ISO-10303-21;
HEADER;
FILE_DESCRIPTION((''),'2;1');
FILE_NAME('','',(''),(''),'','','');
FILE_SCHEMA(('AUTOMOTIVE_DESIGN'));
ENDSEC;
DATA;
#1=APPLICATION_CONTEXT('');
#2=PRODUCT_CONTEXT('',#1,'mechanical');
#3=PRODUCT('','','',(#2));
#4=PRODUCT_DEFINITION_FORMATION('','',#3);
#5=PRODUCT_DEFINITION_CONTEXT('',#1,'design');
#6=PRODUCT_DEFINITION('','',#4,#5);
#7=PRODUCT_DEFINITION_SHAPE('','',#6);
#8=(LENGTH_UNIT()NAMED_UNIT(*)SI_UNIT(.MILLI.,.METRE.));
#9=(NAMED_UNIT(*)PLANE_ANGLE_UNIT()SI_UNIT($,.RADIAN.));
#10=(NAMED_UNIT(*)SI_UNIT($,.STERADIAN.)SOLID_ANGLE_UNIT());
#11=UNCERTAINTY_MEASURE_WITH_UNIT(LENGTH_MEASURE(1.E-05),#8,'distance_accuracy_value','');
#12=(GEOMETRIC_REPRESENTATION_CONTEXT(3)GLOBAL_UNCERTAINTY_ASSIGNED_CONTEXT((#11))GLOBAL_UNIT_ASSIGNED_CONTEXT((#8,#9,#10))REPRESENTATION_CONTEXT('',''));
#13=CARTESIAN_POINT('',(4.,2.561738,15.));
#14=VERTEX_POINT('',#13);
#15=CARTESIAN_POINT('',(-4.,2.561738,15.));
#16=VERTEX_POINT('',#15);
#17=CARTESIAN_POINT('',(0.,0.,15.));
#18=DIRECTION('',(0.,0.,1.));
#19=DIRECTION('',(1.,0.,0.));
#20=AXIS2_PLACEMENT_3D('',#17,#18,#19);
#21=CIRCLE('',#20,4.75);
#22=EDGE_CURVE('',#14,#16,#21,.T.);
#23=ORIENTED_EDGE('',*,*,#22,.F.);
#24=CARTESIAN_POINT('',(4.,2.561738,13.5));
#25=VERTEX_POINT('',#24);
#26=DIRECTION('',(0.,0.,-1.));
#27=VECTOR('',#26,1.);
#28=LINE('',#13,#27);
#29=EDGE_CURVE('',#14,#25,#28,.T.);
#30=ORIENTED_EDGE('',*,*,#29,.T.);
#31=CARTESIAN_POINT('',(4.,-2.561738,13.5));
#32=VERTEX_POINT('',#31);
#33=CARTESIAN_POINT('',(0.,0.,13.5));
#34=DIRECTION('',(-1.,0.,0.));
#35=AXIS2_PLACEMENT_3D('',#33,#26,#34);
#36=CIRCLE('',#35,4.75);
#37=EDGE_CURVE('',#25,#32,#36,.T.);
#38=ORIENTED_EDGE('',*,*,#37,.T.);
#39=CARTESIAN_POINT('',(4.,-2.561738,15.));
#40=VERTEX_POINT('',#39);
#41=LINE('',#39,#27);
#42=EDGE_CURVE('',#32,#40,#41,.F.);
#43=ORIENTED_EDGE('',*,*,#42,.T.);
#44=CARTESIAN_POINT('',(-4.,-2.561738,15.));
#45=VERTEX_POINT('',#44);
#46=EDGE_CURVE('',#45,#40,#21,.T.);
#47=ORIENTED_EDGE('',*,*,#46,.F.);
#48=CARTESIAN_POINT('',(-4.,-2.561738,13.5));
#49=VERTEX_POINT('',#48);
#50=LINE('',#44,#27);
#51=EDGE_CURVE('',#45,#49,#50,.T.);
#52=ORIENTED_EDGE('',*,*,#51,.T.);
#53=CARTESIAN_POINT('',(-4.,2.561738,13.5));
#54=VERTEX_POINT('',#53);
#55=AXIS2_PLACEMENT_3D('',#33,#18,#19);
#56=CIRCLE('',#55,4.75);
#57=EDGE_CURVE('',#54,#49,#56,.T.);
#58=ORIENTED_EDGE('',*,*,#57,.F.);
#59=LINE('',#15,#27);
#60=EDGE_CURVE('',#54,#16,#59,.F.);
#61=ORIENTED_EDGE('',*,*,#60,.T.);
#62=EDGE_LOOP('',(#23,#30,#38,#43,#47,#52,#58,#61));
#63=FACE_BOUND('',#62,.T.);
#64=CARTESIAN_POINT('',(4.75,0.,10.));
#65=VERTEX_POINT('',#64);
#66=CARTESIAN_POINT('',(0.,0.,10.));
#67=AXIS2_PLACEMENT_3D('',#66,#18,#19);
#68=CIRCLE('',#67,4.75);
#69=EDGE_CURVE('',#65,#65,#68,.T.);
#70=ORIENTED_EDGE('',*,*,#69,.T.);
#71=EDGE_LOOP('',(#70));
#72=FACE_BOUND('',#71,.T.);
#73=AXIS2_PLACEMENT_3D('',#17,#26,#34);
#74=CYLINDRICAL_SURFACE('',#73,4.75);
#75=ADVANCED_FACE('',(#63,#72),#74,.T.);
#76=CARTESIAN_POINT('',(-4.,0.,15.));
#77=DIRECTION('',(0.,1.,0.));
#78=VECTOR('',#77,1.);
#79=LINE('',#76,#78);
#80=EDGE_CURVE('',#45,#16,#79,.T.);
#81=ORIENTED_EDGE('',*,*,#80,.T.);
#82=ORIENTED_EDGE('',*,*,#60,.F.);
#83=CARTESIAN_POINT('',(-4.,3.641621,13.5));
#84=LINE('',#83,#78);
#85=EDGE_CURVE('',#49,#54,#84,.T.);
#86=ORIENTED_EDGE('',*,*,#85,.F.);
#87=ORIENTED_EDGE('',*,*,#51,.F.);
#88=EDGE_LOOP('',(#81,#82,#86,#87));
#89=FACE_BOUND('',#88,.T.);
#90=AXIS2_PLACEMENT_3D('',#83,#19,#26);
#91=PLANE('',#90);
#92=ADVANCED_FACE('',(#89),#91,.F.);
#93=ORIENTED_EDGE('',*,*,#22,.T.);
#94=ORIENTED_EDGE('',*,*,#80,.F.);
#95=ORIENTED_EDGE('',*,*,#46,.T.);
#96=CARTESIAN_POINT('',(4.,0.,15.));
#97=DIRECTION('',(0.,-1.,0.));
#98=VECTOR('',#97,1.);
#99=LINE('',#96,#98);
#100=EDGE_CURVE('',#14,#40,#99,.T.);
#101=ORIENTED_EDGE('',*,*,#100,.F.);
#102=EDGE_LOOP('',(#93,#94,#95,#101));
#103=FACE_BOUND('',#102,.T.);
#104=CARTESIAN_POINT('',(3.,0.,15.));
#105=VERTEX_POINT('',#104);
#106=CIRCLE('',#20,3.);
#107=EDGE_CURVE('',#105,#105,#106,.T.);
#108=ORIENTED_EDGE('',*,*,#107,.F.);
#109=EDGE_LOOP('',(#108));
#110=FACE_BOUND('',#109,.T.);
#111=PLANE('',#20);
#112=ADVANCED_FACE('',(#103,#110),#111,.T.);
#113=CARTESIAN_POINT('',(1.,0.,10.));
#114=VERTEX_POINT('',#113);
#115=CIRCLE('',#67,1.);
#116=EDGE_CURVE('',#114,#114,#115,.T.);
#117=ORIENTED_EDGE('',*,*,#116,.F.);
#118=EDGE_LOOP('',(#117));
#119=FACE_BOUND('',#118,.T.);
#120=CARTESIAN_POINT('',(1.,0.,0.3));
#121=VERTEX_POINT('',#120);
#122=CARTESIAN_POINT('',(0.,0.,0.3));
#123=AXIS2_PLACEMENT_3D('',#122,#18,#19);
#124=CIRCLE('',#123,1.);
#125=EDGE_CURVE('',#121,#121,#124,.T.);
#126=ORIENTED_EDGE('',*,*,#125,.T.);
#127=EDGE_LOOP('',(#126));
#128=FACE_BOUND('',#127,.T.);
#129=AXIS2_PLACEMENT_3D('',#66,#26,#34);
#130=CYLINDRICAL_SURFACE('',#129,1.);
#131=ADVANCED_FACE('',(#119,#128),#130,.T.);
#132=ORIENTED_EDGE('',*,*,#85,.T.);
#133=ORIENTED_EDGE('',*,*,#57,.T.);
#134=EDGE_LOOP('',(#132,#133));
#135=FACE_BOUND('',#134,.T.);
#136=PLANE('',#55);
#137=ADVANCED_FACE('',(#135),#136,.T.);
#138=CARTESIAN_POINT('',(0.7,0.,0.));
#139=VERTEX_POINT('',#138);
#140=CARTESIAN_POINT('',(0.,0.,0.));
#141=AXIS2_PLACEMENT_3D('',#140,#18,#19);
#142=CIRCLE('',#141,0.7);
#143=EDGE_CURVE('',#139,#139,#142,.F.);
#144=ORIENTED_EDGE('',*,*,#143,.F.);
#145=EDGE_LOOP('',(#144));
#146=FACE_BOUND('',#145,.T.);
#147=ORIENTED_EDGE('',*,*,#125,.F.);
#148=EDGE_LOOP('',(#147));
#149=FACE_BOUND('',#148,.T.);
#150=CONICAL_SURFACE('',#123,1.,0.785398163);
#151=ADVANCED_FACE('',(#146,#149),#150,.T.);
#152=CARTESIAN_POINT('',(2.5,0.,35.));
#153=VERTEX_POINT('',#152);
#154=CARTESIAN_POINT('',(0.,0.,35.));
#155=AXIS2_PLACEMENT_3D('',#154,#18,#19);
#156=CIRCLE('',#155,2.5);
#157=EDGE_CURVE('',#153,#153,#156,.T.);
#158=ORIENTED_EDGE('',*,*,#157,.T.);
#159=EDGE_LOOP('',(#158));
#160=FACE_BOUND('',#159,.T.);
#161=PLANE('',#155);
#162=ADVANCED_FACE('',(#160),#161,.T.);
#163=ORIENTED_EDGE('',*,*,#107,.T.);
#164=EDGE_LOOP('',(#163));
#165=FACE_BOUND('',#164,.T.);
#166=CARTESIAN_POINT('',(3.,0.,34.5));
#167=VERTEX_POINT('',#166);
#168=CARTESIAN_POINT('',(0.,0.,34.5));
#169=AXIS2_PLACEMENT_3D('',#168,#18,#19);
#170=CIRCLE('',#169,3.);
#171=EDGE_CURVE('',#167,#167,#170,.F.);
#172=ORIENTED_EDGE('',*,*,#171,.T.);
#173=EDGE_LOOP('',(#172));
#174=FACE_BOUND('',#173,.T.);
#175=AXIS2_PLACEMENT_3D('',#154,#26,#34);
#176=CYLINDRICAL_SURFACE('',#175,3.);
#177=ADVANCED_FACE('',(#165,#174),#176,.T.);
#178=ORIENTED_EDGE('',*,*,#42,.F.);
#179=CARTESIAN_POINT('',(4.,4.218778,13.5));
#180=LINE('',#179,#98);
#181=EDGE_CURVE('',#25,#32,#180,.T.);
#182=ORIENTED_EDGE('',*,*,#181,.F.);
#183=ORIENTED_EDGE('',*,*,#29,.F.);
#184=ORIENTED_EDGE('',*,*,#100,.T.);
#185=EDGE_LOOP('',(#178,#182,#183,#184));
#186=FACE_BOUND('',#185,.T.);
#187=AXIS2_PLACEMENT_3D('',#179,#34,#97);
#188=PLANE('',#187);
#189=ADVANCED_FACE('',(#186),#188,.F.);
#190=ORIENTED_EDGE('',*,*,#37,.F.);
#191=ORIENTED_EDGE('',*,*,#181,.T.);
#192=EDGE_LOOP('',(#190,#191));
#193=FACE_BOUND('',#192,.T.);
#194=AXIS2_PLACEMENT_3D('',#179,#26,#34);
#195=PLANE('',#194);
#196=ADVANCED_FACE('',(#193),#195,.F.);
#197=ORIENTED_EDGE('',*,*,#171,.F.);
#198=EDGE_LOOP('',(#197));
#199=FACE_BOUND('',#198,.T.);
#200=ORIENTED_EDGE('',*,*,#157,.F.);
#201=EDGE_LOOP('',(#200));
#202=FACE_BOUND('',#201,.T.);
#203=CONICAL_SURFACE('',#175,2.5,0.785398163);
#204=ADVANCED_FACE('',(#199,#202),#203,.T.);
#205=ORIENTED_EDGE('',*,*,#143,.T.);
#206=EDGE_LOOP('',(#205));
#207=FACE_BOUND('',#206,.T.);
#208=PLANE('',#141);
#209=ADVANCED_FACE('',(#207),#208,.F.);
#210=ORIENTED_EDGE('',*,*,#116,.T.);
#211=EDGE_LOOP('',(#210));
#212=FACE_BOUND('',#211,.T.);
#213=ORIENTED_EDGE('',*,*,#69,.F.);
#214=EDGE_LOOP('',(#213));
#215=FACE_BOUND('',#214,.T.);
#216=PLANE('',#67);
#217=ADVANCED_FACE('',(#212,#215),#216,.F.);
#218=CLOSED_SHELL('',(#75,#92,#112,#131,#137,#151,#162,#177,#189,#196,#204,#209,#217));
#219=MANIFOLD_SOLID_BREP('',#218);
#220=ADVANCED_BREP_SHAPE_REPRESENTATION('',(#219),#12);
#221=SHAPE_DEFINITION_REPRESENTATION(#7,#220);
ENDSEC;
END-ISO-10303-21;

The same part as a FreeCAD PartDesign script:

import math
import FreeCAD as App
import Part
import Sketcher


def edges_at(feature, points):
    """Names of the edges that pass closest to the given points."""
    edges = feature.Shape.Edges
    near = lambda p: min(range(len(edges)), key=lambda i: edges[i].distToShape(Part.Vertex(*p))[0])
    return sorted({f"Edge{near(p) + 1}" for p in points})


def add_polygon(sketch, points):
    """Adds a closed chain of lines whose ends are joined by coincident constraints."""
    first, n = sketch.GeometryCount, len(points)
    for a, b in zip(points, points[1:] + points[:1]):
        sketch.addGeometry(Part.LineSegment(App.Vector(*a, 0), App.Vector(*b, 0)), False)
    for i in range(n):
        sketch.addConstraint(Sketcher.Constraint("Coincident", first + i, 2, first + (i + 1) % n, 1))

doc = App.newDocument("Part")
body = doc.addObject("PartDesign::Body", "Body")

# Sketch on XY plane
sketch1 = doc.addObject("Sketcher::SketchObject", "Sketch")
body.addObject(sketch1)
sketch1.AttachmentSupport = (doc.XY_Plane, [""])
sketch1.MapMode = "FlatFace"
sketch1.addGeometry(Part.Circle(App.Vector(0, 0, 0), App.Vector(0, 0, 1), 1), False)
sketch1.addConstraint(Sketcher.Constraint("Coincident", 0, 3, -1, 1))
sketch1.addConstraint(Sketcher.Constraint("Diameter", 0, 2.0))
pad1 = doc.addObject("PartDesign::Pad", "Pad")
body.addObject(pad1)
pad1.Profile = sketch1
pad1.Length = 10

# Sketch on XY plane
sketch2 = doc.addObject("Sketcher::SketchObject", "Sketch001")
body.addObject(sketch2)
sketch2.AttachmentSupport = (doc.XY_Plane, [""])
sketch2.MapMode = "FlatFace"
sketch2.AttachmentOffset = App.Placement(App.Vector(0, 0, 10), App.Rotation())
sketch2.addGeometry(Part.Circle(App.Vector(0, 0, 0), App.Vector(0, 0, 1), 4.8), False)
sketch2.addConstraint(Sketcher.Constraint("Coincident", 0, 3, -1, 1))
sketch2.addConstraint(Sketcher.Constraint("Diameter", 0, 9.5))
pad2 = doc.addObject("PartDesign::Pad", "Pad001")
body.addObject(pad2)
pad2.Profile = sketch2
pad2.Length = 5

# Sketch on XY plane
sketch3 = doc.addObject("Sketcher::SketchObject", "Sketch002")
body.addObject(sketch3)
sketch3.AttachmentSupport = (doc.XY_Plane, [""])
sketch3.MapMode = "FlatFace"
sketch3.AttachmentOffset = App.Placement(App.Vector(0, 0, 15), App.Rotation())
sketch3.addGeometry(Part.LineSegment(App.Vector(-4, -4, 0), App.Vector(-4, 4, 0)), False)
sketch3.addGeometry(Part.ArcOfCircle(Part.Circle(App.Vector(0, 0, 0), App.Vector(0, 0, 1), 5), math.radians(138), math.radians(222)), False)
sketch3.addConstraint(Sketcher.Constraint("Coincident", 0, 1, 1, 2))
sketch3.addConstraint(Sketcher.Constraint("Coincident", 1, 1, 0, 2))
sketch3.addConstraint(Sketcher.Constraint("Vertical", 0))
sketch3.addConstraint(Sketcher.Constraint("Coincident", 1, 3, -1, 1))
sketch3.addConstraint(Sketcher.Constraint("DistanceX", 0, 1, -1, 1, 4.0))
sketch3.addConstraint(Sketcher.Constraint("Radius", 1, 5.409381))
pocket1 = doc.addObject("PartDesign::Pocket", "Pocket")
body.addObject(pocket1)
pocket1.Profile = sketch3
pocket1.Length = 1.5

# Sketch on XY plane
sketch4 = doc.addObject("Sketcher::SketchObject", "Sketch003")
body.addObject(sketch4)
sketch4.AttachmentSupport = (doc.XY_Plane, [""])
sketch4.MapMode = "FlatFace"
sketch4.AttachmentOffset = App.Placement(App.Vector(0, 0, 15), App.Rotation())
add_polygon(sketch4, [(4, 4.2), (4, -4), (6.6, -4), (6.6, 4.2)])  # lines 0-3
sketch4.addConstraint(Sketcher.Constraint("Vertical", 0))
sketch4.addConstraint(Sketcher.Constraint("Horizontal", 1))
sketch4.addConstraint(Sketcher.Constraint("Vertical", 2))
sketch4.addConstraint(Sketcher.Constraint("Horizontal", 3))
sketch4.addConstraint(Sketcher.Constraint("DistanceX", -1, 1, 0, 2, 4.0))
sketch4.addConstraint(Sketcher.Constraint("DistanceY", 0, 2, -1, 1, 3.977))
sketch4.addConstraint(Sketcher.Constraint("DistanceY", 0, 2, 0, 1, 8.195779))
sketch4.addConstraint(Sketcher.Constraint("DistanceX", 1, 1, 1, 2, 2.580323))
pocket2 = doc.addObject("PartDesign::Pocket", "Pocket001")
body.addObject(pocket2)
pocket2.Profile = sketch4
pocket2.Length = 1.5

# Sketch on XY plane
sketch5 = doc.addObject("Sketcher::SketchObject", "Sketch004")
body.addObject(sketch5)
sketch5.AttachmentSupport = (doc.XY_Plane, [""])
sketch5.MapMode = "FlatFace"
sketch5.AttachmentOffset = App.Placement(App.Vector(0, 0, 15), App.Rotation())
sketch5.addGeometry(Part.Circle(App.Vector(0, 0, 0), App.Vector(0, 0, 1), 3), False)
sketch5.addConstraint(Sketcher.Constraint("Coincident", 0, 3, -1, 1))
sketch5.addConstraint(Sketcher.Constraint("Diameter", 0, 6.0))
pad3 = doc.addObject("PartDesign::Pad", "Pad002")
body.addObject(pad3)
pad3.Profile = sketch5
pad3.Length = 20
doc.recompute()

chamfer = doc.addObject("PartDesign::Chamfer", "Chamfer")
body.addObject(chamfer)
chamfer.Base = (pad3, edges_at(pad3, [(-3, 0, 35)]))
chamfer.Size = 0.5
doc.recompute()

chamfer2 = doc.addObject("PartDesign::Chamfer", "Chamfer001")
body.addObject(chamfer2)
chamfer2.Base = (chamfer, edges_at(chamfer, [(-1, 0, 0)]))
chamfer2.Size = 0.3

doc.recompute()
